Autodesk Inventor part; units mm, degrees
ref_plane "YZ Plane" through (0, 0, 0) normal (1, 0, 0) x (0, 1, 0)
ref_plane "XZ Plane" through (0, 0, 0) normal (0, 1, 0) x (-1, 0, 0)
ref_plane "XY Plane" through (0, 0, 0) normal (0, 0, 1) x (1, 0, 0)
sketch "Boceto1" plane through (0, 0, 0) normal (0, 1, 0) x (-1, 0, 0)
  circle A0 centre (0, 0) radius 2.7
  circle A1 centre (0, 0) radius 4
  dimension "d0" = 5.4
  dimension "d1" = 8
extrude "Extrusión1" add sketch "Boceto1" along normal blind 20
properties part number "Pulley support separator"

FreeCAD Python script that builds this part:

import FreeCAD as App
import Part
import Sketcher
Q = App.Units.Quantity

doc = App.newDocument("Part")
body = doc.addObject("PartDesign::Body", "Body")

# Sketch on XZ plane
sketch1 = doc.addObject("Sketcher::SketchObject", "Sketch")
body.addObject(sketch1)
sketch1.AttachmentSupport = (doc.XZ_Plane, [""])
sketch1.MapMode = "FlatFace"
sketch1.addGeometry(Part.Circle(App.Vector(0, 0, 0), App.Vector(0, 0, 1), 4), False)
sketch1.addGeometry(Part.Circle(App.Vector(0, 0, 0), App.Vector(0, 0, 1), 2.7), False)
sketch1.addConstraint(Sketcher.Constraint("Coincident", 0, 3, -1, 1))
sketch1.addConstraint(Sketcher.Constraint("Coincident", 1, 3, -1, 1))
sketch1.addConstraint(Sketcher.Constraint("Diameter", 0, Q("8 mm")))
sketch1.addConstraint(Sketcher.Constraint("Diameter", 1, Q("5.4 mm")))
pad1 = doc.addObject("PartDesign::Pad", "Pad")
body.addObject(pad1)
pad1.Profile = sketch1
pad1.Length = 20
pad1.Reversed = True

doc.recompute()
